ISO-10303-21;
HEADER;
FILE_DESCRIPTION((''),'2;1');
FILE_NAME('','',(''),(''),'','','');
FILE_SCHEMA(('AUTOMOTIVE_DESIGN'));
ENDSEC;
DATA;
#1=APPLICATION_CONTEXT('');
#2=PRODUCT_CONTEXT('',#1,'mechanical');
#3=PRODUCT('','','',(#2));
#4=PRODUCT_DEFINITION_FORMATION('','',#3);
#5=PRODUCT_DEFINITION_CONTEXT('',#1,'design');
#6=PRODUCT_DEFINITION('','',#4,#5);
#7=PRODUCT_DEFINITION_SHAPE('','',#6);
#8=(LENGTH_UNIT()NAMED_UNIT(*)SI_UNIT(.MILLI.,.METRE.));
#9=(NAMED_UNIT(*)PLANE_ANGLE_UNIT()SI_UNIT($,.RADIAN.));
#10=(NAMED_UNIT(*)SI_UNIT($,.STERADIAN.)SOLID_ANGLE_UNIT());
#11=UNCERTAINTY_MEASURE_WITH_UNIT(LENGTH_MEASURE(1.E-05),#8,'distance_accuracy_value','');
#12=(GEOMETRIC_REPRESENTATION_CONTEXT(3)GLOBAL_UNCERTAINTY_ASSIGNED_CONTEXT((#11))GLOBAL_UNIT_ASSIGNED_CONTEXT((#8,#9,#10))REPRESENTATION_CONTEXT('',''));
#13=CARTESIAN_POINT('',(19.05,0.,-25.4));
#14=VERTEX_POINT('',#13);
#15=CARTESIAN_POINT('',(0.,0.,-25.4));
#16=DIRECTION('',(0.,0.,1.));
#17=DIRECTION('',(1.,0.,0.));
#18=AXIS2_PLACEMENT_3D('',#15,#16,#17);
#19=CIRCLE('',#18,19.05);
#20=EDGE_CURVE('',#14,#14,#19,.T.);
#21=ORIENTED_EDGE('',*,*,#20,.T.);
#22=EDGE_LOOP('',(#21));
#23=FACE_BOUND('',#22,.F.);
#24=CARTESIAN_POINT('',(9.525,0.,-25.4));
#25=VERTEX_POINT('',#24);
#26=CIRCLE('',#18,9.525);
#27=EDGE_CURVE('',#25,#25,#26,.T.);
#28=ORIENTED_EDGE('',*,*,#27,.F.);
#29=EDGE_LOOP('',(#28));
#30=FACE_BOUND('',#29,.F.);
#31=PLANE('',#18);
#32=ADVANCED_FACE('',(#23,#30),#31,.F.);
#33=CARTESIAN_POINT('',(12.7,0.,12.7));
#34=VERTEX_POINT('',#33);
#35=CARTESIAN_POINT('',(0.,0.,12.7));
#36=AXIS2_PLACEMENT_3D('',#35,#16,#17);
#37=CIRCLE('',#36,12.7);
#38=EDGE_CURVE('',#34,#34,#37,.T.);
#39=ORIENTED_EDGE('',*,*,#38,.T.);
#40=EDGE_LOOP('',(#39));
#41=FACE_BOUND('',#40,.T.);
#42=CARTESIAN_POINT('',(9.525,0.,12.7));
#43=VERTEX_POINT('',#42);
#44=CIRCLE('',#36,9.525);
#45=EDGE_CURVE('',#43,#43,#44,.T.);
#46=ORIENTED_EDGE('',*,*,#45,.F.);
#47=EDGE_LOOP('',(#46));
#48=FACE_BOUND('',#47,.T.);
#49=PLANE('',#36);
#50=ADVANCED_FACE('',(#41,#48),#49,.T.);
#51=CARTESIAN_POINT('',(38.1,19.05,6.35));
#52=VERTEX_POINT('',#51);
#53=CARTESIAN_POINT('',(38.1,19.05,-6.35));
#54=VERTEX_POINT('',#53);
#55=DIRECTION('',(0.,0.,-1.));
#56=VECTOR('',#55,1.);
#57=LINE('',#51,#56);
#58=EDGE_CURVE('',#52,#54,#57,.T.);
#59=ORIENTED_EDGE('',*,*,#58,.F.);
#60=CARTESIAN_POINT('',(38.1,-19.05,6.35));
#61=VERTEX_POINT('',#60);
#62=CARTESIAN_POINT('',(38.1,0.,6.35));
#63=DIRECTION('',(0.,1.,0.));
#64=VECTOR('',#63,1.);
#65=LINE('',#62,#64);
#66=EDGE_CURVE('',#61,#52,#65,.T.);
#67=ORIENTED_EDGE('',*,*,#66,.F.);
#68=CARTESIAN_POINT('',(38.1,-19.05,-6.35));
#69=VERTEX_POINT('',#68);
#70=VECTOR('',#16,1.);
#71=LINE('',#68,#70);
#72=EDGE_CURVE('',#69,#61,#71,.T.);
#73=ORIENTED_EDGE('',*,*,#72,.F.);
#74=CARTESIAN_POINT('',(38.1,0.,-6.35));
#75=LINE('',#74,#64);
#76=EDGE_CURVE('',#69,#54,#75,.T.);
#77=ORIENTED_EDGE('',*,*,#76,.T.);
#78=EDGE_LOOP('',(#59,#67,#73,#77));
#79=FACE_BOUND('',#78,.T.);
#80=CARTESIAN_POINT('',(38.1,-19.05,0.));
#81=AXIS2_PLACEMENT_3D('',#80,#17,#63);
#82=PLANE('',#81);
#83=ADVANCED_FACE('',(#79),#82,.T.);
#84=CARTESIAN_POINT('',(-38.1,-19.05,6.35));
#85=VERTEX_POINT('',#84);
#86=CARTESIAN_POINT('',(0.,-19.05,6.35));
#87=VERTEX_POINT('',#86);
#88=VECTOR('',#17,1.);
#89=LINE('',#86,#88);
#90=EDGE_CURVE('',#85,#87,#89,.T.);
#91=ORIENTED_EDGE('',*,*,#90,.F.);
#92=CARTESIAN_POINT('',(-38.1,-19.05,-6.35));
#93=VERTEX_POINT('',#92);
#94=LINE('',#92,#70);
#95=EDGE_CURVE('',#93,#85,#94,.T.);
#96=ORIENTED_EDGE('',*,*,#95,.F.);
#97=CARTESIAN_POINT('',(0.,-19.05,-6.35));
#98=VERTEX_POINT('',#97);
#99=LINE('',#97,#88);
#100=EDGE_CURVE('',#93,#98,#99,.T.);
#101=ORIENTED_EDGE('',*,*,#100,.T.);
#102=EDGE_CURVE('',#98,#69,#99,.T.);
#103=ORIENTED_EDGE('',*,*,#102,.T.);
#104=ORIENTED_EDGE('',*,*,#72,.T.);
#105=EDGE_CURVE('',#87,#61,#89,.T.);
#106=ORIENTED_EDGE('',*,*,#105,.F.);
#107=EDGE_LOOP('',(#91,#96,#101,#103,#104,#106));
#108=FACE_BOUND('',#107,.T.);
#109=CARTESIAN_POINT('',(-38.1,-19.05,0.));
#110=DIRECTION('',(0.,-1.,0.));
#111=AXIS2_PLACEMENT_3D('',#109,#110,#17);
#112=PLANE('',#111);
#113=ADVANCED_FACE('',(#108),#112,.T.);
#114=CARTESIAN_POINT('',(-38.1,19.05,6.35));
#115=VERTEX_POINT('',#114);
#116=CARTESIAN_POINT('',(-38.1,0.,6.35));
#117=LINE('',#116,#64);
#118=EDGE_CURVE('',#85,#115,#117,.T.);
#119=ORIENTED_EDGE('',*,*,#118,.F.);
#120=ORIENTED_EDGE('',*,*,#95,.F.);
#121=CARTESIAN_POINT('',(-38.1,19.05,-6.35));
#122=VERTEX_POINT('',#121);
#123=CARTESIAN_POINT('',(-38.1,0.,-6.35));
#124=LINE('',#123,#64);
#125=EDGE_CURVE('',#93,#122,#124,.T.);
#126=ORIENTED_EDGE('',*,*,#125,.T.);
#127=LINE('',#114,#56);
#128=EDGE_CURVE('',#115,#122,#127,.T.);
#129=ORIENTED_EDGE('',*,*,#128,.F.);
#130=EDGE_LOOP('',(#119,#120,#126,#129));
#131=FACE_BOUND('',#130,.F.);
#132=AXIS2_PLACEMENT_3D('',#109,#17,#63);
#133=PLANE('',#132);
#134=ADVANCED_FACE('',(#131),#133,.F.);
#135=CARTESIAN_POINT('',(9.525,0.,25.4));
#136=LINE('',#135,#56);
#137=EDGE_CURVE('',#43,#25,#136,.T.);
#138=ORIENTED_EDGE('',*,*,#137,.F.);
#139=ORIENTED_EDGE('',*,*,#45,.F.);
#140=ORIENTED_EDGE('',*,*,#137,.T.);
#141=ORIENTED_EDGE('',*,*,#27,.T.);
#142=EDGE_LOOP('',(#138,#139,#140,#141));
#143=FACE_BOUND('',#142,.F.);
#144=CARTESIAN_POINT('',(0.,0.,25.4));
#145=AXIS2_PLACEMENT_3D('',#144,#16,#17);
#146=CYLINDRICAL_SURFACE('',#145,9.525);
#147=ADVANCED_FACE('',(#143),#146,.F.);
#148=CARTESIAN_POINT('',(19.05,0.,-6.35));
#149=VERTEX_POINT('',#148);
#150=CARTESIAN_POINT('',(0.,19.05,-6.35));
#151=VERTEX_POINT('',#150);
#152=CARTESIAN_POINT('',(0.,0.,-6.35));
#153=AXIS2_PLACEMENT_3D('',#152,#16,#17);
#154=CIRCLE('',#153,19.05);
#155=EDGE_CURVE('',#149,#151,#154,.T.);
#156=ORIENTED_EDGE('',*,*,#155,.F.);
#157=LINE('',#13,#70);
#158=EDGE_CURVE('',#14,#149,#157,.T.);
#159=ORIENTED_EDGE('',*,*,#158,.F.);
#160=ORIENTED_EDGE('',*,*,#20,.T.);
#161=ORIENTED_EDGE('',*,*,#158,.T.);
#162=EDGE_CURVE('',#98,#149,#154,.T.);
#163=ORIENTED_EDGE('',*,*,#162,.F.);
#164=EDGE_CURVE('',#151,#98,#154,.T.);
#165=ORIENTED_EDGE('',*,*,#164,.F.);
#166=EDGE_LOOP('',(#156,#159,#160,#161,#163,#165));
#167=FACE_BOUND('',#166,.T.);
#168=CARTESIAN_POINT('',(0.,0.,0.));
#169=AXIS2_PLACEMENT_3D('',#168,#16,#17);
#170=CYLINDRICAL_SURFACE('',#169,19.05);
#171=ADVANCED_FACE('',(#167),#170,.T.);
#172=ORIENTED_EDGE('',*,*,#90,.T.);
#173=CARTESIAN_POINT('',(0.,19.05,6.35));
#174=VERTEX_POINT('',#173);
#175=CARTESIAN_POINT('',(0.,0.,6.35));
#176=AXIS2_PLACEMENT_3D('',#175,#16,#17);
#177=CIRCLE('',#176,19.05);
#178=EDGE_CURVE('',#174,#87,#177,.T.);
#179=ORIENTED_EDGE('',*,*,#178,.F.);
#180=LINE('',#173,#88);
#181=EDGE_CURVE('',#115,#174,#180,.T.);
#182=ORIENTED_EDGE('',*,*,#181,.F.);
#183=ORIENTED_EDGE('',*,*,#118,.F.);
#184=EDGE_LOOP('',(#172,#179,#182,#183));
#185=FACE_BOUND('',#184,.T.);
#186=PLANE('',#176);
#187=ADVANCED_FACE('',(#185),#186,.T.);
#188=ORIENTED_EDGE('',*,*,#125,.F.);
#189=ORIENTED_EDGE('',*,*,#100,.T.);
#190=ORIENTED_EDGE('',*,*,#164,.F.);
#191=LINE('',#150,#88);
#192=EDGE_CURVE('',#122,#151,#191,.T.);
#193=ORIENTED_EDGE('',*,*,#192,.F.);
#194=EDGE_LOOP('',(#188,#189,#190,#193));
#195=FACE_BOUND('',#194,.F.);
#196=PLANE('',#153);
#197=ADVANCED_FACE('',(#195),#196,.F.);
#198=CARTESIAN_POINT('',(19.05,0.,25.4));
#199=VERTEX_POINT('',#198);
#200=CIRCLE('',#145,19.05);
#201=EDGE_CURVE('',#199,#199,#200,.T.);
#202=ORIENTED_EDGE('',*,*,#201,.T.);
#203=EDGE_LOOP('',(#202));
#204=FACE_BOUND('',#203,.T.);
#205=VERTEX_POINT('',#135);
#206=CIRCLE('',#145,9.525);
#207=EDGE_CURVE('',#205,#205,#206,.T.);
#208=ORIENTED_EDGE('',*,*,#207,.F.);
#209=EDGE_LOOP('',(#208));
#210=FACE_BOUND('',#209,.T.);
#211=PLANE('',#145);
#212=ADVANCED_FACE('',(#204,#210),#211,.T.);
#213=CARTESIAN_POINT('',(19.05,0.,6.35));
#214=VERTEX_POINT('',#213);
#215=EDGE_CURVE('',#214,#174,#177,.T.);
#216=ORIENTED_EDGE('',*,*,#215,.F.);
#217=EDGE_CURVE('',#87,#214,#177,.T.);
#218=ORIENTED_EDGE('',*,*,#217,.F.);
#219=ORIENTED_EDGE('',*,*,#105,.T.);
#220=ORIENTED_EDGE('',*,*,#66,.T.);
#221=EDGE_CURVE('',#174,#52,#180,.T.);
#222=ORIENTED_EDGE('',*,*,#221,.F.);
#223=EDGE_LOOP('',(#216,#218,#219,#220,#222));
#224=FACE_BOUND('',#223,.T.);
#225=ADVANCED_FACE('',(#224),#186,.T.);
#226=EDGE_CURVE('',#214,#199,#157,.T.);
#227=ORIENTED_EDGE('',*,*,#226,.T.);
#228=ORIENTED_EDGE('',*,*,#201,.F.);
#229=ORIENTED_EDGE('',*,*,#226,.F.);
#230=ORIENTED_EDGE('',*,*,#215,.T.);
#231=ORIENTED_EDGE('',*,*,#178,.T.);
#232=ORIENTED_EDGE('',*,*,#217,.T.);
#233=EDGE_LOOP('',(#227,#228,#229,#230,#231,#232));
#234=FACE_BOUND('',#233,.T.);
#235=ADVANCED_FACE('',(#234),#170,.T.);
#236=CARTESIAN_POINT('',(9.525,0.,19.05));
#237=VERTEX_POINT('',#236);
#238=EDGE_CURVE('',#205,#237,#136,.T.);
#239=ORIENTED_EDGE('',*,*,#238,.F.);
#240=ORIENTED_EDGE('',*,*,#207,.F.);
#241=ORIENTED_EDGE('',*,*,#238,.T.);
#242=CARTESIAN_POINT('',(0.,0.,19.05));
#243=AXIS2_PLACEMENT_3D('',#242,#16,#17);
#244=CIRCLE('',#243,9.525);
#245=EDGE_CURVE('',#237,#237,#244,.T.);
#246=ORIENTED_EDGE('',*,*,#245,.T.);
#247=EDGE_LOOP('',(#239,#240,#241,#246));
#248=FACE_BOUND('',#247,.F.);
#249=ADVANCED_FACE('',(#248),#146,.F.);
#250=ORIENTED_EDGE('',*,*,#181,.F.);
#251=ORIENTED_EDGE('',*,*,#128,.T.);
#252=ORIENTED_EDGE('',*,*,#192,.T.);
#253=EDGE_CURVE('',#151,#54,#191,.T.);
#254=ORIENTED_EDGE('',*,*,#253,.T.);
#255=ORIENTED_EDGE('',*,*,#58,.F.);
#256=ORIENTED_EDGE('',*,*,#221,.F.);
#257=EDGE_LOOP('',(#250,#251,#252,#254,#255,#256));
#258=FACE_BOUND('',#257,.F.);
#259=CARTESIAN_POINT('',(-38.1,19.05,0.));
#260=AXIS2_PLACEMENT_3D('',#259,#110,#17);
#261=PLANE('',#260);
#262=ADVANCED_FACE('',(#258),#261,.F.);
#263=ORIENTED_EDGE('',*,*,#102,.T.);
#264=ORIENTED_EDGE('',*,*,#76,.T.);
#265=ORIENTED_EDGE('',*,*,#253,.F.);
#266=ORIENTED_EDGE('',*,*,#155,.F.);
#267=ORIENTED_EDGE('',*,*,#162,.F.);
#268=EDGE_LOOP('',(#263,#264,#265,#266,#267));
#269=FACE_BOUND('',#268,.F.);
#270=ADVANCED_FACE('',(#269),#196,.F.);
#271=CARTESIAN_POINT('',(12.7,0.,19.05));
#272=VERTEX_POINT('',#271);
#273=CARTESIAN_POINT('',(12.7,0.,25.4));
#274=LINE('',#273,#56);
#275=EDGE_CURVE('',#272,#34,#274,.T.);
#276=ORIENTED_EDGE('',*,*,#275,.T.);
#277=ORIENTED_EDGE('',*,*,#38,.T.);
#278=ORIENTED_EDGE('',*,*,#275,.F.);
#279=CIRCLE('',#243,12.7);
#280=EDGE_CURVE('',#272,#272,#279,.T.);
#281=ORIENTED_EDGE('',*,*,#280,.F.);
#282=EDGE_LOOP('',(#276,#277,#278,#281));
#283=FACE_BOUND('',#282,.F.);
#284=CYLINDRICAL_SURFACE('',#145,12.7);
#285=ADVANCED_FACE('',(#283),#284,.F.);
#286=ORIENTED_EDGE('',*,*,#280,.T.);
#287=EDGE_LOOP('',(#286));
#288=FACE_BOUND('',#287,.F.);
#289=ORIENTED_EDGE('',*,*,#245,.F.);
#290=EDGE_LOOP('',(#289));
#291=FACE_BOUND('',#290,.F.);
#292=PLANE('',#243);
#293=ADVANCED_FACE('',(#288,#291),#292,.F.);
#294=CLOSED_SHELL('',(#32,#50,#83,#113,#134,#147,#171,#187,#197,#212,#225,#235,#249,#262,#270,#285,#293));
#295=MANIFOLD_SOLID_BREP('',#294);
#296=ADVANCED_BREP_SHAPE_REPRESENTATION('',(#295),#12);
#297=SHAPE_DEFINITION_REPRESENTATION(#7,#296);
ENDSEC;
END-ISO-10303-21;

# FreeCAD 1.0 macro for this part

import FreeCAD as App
import Part
import Sketcher
Q = App.Units.Quantity

doc = App.newDocument("Part")
body = doc.addObject("PartDesign::Body", "Body")

# Sketch on XY plane
sketch1 = body.newObject("Sketcher::SketchObject", "Sketch")
sketch1.AttachmentSupport = (doc.getObject("XY_Plane"), [""])
sketch1.MapMode = "FlatFace"
sketch1.addGeometry([
    Part.LineSegment(App.Vector(-38.1, 19.05, 0), App.Vector(-38.1, -19.05, 0)),
    Part.LineSegment(App.Vector(-38.1, -19.05, 0), App.Vector(38.1, -19.05, 0)),
    Part.LineSegment(App.Vector(38.1, -19.05, 0), App.Vector(38.1, 19.05, 0)),
    Part.LineSegment(App.Vector(38.1, 19.05, 0), App.Vector(-38.1, 19.05, 0)),
], False)
sketch1.addConstraint([
    Sketcher.Constraint("Coincident", 0, 2, 1, 1),
    Sketcher.Constraint("Coincident", 1, 2, 2, 1),
    Sketcher.Constraint("Coincident", 2, 2, 3, 1),
    Sketcher.Constraint("Coincident", 3, 2, 0, 1),
    Sketcher.Constraint("Vertical", 0),
    Sketcher.Constraint("Horizontal", 1),
    Sketcher.Constraint("Vertical", 2),
    Sketcher.Constraint("Horizontal", 3),
    Sketcher.Constraint("Symmetric", 0, 2, 2, 2, -1, 1),
    Sketcher.Constraint("DistanceX", 1, 1, 1, 2, Q("3 in")),
    Sketcher.Constraint("DistanceY", 0, 2, 0, 1, Q("1.5 in")),
])
pad1 = body.newObject("PartDesign::Pad", "Pad")
pad1.Profile = sketch1
pad1.Length = Q("0.5 in")
pad1.Midplane = True

# Sketch on XY plane
sketch2 = body.newObject("Sketcher::SketchObject", "Sketch001")
sketch2.AttachmentSupport = (doc.getObject("XY_Plane"), [""])
sketch2.MapMode = "FlatFace"
sketch2.addGeometry(Part.Circle(App.Vector(0, 0, 0), App.Vector(0, 0, 1), 19.05), False)
sketch2.addConstraint([
    Sketcher.Constraint("Coincident", 0, 3, -1, 1),
    Sketcher.Constraint("Diameter", 0, Q("1.5 in")),
])
pad2 = body.newObject("PartDesign::Pad", "Pad001")
pad2.Profile = sketch2
pad2.Length = Q("2 in")
pad2.Midplane = True

# Sketch on XY plane
sketch3 = body.newObject("Sketcher::SketchObject", "Sketch002")
sketch3.AttachmentSupport = (doc.getObject("XY_Plane"), [""])
sketch3.MapMode = "FlatFace"
sketch3.AttachmentOffset = App.Placement(App.Vector(0, 0, 1 * 25.4), App.Rotation())
sketch3.addGeometry(Part.Circle(App.Vector(0, 0, 0), App.Vector(0, 0, 1), 9.525), False)
sketch3.addConstraint([
    Sketcher.Constraint("Coincident", 0, 3, -1, 1),
    Sketcher.Constraint("Diameter", 0, Q("0.75 in")),
])
pocket1 = body.newObject("PartDesign::Pocket", "Pocket")
pocket1.Profile = sketch3
pocket1.Type = "ThroughAll"

# Sketch on XY plane
sketch4 = body.newObject("Sketcher::SketchObject", "Sketch003")
sketch4.AttachmentSupport = (doc.getObject("XY_Plane"), [""])
sketch4.MapMode = "FlatFace"
sketch4.AttachmentOffset = App.Placement(App.Vector(0, 0, 1 * 25.4), App.Rotation())
sketch4.addGeometry(Part.Circle(App.Vector(0, 0, 0), App.Vector(0, 0, 1), 12.7), False)
sketch4.addConstraint([
    Sketcher.Constraint("Coincident", 0, 3, -1, 1),
    Sketcher.Constraint("Diameter", 0, Q("1 in")),
])
pocket2 = body.newObject("PartDesign::Pocket", "Pocket001")
pocket2.Profile = sketch4
pocket2.Length = Q("0.5 in")

# Sketch on XY plane
sketch5 = body.newObject("Sketcher::SketchObject", "Sketch004")
sketch5.AttachmentSupport = (doc.getObject("XY_Plane"), [""])
sketch5.MapMode = "FlatFace"
sketch5.AttachmentOffset = App.Placement(App.Vector(0, 0, 1 * 25.4), App.Rotation())
sketch5.addGeometry(Part.Circle(App.Vector(0, 0, 0), App.Vector(0, 0, 1), 12.7), False)
sketch5.addConstraint([
    Sketcher.Constraint("Coincident", 0, 3, -1, 1),
    Sketcher.Constraint("Diameter", 0, Q("1 in")),
])
pad3 = body.newObject("PartDesign::Pad", "Pad002")
pad3.Profile = sketch5
pad3.Length = Q("0.25 in")
pad3.Reversed = True

# Sketch on XY plane
sketch6 = body.newObject("Sketcher::SketchObject", "Sketch005")
sketch6.AttachmentSupport = (doc.getObject("XY_Plane"), [""])
sketch6.MapMode = "FlatFace"
sketch6.AttachmentOffset = App.Placement(App.Vector(0, 0, 1 * 25.4), App.Rotation())
sketch6.addGeometry(Part.Circle(App.Vector(0, 0, 0), App.Vector(0, 0, 1), 9.525), False)
sketch6.addConstraint([
    Sketcher.Constraint("Coincident", 0, 3, -1, 1),
    Sketcher.Constraint("Diameter", 0, Q("0.75 in")),
])
pocket3 = body.newObject("PartDesign::Pocket", "Pocket002")
pocket3.Profile = sketch6
pocket3.Type = "ThroughAll"

doc.recompute()
